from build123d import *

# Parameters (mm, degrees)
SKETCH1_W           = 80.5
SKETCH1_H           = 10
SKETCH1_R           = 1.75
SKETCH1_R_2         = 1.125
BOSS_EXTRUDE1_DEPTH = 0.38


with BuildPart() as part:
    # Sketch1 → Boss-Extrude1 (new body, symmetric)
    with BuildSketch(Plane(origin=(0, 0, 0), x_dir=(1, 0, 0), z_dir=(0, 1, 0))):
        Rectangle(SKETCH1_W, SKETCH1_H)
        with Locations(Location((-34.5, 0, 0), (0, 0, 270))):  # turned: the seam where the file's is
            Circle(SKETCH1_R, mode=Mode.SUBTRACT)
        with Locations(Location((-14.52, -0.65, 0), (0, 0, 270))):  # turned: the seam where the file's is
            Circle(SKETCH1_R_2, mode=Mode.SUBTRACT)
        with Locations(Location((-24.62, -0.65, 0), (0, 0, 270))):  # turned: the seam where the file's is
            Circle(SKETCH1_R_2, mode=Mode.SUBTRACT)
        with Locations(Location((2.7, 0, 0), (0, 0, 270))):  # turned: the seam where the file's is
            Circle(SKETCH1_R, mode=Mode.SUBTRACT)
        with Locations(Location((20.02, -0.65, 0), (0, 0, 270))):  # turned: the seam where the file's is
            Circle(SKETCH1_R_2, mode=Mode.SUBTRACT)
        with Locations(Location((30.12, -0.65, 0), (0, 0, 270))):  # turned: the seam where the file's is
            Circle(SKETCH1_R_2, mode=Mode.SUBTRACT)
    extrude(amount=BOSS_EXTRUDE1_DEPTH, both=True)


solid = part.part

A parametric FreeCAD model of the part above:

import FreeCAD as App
import Part
import Sketcher
Q = App.Units.Quantity

doc = App.newDocument("Part")
body = doc.addObject("PartDesign::Body", "Body")

# Sketch on XZ plane
sketch1 = body.newObject("Sketcher::SketchObject", "Sketch")
sketch1.AttachmentSupport = (doc.getObject("XZ_Plane"), [""])
sketch1.MapMode = "FlatFace"
sketch1.addGeometry([
    Part.LineSegment(App.Vector(-40.2, -5, 0), App.Vector(-40.2, 5, 0)),  # 0
    Part.LineSegment(App.Vector(-40.2, 5, 0), App.Vector(40.2, 5, 0)),  # 1
    Part.LineSegment(App.Vector(40.2, 5, 0), App.Vector(40.2, -5, 0)),  # 2
    Part.LineSegment(App.Vector(40.2, -5, 0), App.Vector(-40.2, -5, 0)),  # 3
    Part.Circle(App.Vector(-24.6, 0.7, 0), App.Vector(0, 0, 1), 1.1),  # 4
    Part.Circle(App.Vector(-14.5, 0.7, 0), App.Vector(0, 0, 1), 1.1),  # 5
    Part.Circle(App.Vector(20, 0.7, 0), App.Vector(0, 0, 1), 1.1),  # 6
    Part.Circle(App.Vector(30.1, 0.7, 0), App.Vector(0, 0, 1), 1.1),  # 7
    Part.Circle(App.Vector(-34.5, 0, 0), App.Vector(0, 0, 1), 1.8),  # 8
    Part.Circle(App.Vector(2.7, 0, 0), App.Vector(0, 0, 1), 1.8),  # 9
], False)
sketch1.addConstraint([
    Sketcher.Constraint("Coincident", 0, 2, 1, 1),
    Sketcher.Constraint("Coincident", 1, 2, 2, 1),
    Sketcher.Constraint("Coincident", 2, 2, 3, 1),
    Sketcher.Constraint("Coincident", 3, 2, 0, 1),
    Sketcher.Constraint("Vertical", 0),
    Sketcher.Constraint("Horizontal", 1),
    Sketcher.Constraint("Vertical", 2),
    Sketcher.Constraint("Horizontal", 3),
    Sketcher.Constraint("Equal", 4, 5),
    Sketcher.Constraint("Equal", 5, 6),
    Sketcher.Constraint("Equal", 6, 7),
    Sketcher.Constraint("Equal", 8, 9),
    Sketcher.Constraint("Symmetric", 0, 2, 2, 2, -1, 1),
    Sketcher.Constraint("PointOnObject", 8, 3, -1),
    Sketcher.Constraint("PointOnObject", 9, 3, -1),
    Sketcher.Constraint("Horizontal", 4, 3, 5, 3),
    Sketcher.Constraint("Horizontal", 5, 3, 6, 3),
    Sketcher.Constraint("Horizontal", 6, 3, 7, 3),
    Sketcher.Constraint("Diameter", 8, Q("3.5 mm")),
    Sketcher.Constraint("Diameter", 4, Q("2.25 mm")),
    Sketcher.Constraint("DistanceY", 0, 1, 0, 2, Q("10 mm")),
    Sketcher.Constraint("DistanceX", 1, 1, 1, 2, Q("80.5 mm")),
    Sketcher.Constraint("DistanceX", 8, 3, -1, 1, Q("34.5 mm")),
    Sketcher.Constraint("DistanceX", -1, 1, 9, 3, Q("2.7 mm")),
    Sketcher.Constraint("DistanceX", 4, 3, 5, 3, Q("10.1 mm")),
    Sketcher.Constraint("DistanceX", 6, 3, 7, 3, Q("10.1 mm")),
    Sketcher.Constraint("DistanceX", 4, 3, -1, 1, Q("24.62 mm")),
    Sketcher.Constraint("DistanceY", -1, 1, 4, 3, Q("0.65 mm")),
    Sketcher.Constraint("DistanceX", -1, 1, 6, 3, Q("20.02 mm")),
])
pad1 = body.newObject("PartDesign::Pad", "Pad")
pad1.Profile = sketch1
pad1.Length = 0.76
pad1.Midplane = True

doc.recompute()
